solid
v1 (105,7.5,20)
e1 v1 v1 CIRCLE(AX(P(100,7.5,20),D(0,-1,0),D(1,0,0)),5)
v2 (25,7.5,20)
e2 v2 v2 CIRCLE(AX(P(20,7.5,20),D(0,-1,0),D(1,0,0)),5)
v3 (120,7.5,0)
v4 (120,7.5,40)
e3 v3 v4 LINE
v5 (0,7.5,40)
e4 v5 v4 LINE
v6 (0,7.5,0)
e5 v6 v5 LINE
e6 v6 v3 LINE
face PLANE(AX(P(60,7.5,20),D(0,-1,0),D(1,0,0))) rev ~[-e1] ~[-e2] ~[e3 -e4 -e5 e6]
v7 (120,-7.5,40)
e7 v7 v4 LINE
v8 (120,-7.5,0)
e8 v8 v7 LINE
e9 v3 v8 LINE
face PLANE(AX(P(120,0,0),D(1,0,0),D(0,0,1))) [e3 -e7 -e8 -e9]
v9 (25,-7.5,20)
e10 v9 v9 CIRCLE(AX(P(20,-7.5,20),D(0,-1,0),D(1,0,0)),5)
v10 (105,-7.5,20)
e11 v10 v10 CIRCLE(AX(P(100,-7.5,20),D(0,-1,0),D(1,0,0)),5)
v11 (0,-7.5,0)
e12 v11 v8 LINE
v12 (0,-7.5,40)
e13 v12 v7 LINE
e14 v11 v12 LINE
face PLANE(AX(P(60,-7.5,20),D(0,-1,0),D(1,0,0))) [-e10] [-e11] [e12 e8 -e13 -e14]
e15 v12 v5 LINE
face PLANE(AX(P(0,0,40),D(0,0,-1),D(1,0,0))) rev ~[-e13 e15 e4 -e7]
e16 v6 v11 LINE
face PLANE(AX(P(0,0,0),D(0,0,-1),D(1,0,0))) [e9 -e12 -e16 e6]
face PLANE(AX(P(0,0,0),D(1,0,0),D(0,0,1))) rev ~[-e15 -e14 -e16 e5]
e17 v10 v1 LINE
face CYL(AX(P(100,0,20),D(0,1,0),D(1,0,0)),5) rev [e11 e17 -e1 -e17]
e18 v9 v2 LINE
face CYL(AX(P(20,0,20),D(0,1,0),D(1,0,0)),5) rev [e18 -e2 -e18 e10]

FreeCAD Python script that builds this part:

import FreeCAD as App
import Part
import Sketcher
from FreeCAD import Vector
Q = App.Units.Quantity


def add_polygon(sketch, points):
    """Adds a closed chain of lines whose ends are joined by coincident constraints."""
    first, n = sketch.GeometryCount, len(points)
    for a, b in zip(points, points[1:] + points[:1]):
        sketch.addGeometry(Part.LineSegment(App.Vector(*a, 0), App.Vector(*b, 0)), False)
    for i in range(n):
        sketch.addConstraint(Sketcher.Constraint("Coincident", first + i, 2, first + (i + 1) % n, 1))

doc = App.newDocument("Part")
params = doc.addObject("Spreadsheet::Sheet", "Params")
for row, (alias, value) in enumerate([
    ("sketch1_diameter", "10 mm"),
    ("sketch1_width", "120 mm"),
    ("sketch1_height", "40 mm"),
    ("pad1_length", "15 mm"),
], start=1):
    params.set(f"A{row}", alias)
    params.set(f"B{row}", "=" + value)
    params.setAlias(f"B{row}", alias)

body = doc.addObject("PartDesign::Body", "Body")

sketch1 = body.newObject("Sketcher::SketchObject", "Sketch")
sketch1.AttachmentSupport = (doc.getObject("XZ_Plane"), [""])
sketch1.MapMode = "FlatFace"
add_polygon(sketch1, [(0, 40), (0, 0), (120, 0), (120, 40)])
sketch1.addGeometry(Part.Circle(Vector(20, 20, 0), Vector(0, 0, 1), 5), False)
sketch1.addGeometry(Part.Circle(Vector(100, 20, 0), Vector(0, 0, 1), 5), False)
sketch1.addConstraint(Sketcher.Constraint("Vertical", 0))
sketch1.addConstraint(Sketcher.Constraint("Horizontal", 1))
sketch1.addConstraint(Sketcher.Constraint("Vertical", 2))
sketch1.addConstraint(Sketcher.Constraint("Horizontal", 3))
sketch1.addConstraint(Sketcher.Constraint("Coincident", 0, 2, -1, 1))
sketch1.addConstraint(Sketcher.Constraint("Equal", 4, 5))
sketch1.addConstraint(Sketcher.Constraint("Horizontal", 4, 3, 5, 3))
sketch1.addConstraint(Sketcher.Constraint("Diameter", 4, Q("10 mm")))
sketch1.addConstraint(Sketcher.Constraint("DistanceX", 1, 1, 1, 2, Q("120 mm")))
sketch1.addConstraint(Sketcher.Constraint("DistanceY", 0, 2, 0, 1, Q("40 mm")))
sketch1.addConstraint(Sketcher.Constraint("DistanceX", -1, 1, 4, 3, Q("20 mm")))
sketch1.addConstraint(Sketcher.Constraint("DistanceY", -1, 1, 4, 3, Q("20 mm")))
sketch1.addConstraint(Sketcher.Constraint("DistanceX", -1, 1, 5, 3, Q("100 mm")))
sketch1.setExpression("Constraints[11]", "Params.sketch1_diameter")
sketch1.setExpression("Constraints[12]", "Params.sketch1_width")
sketch1.setExpression("Constraints[13]", "Params.sketch1_height")
pad1 = body.newObject("PartDesign::Pad", "Pad")
pad1.Profile = sketch1
pad1.setExpression("Length", "Params.pad1_length")
pad1.Midplane = True

doc.recompute()
